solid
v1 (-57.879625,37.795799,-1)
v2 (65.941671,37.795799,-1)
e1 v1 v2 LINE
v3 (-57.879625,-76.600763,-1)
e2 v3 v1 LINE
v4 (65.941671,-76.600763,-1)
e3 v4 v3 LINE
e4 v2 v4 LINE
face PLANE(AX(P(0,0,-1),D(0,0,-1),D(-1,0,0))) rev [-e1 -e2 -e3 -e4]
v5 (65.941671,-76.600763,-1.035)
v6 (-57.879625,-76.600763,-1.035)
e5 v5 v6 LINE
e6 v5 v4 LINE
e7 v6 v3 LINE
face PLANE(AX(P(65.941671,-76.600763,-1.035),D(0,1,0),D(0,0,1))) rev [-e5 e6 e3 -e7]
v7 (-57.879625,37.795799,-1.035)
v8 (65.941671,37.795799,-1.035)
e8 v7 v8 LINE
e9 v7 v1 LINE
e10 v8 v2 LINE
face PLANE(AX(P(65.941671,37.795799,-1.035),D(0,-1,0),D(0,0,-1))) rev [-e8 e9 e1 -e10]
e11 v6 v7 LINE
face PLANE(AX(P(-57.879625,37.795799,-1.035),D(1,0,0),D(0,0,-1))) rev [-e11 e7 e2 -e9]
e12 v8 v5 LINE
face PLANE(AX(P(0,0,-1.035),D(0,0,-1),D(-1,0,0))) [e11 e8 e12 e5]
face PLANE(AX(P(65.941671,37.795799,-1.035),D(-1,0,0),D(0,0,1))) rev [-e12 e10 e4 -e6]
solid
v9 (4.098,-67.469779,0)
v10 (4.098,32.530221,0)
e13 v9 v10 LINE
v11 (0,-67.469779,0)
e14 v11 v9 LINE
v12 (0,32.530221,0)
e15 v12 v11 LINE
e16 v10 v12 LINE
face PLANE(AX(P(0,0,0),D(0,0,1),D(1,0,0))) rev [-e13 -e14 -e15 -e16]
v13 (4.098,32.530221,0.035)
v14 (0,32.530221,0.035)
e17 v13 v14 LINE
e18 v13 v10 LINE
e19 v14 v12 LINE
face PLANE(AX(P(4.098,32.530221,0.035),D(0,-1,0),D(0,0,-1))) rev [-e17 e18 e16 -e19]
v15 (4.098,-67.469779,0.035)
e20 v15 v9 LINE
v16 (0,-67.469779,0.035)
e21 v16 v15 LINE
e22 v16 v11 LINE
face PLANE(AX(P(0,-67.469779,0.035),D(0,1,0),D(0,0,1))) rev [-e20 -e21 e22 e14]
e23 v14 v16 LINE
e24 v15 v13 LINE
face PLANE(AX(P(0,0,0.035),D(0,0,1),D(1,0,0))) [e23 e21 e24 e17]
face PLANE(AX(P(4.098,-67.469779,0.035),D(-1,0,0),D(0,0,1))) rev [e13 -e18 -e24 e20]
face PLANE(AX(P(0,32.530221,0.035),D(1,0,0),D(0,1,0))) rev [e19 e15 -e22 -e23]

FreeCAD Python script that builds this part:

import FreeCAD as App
import Part
import Sketcher

V = App.Vector

doc = App.newDocument("Part")
params = doc.addObject("Spreadsheet::Sheet", "Params")
for row, (alias, value) in enumerate([
    ("sketch1_height", "100 mm"),
    ("pad1_length", "0.035 mm"),
    ("pad2_length", "0.035 mm"),
], start=1):
    params.set(f"A{row}", alias)
    params.set(f"B{row}", "=" + value)
    params.setAlias(f"B{row}", alias)

body = doc.addObject("PartDesign::Body", "Body")

sketch1 = body.newObject("Sketcher::SketchObject", "Sketch")
sketch1.AttachmentSupport = (doc.getObject("XY_Plane"), [""])
sketch1.MapMode = "FlatFace"
sketch1.addGeometry(Part.LineSegment(V(0, 32.530221, 0), V(0, -67.469779, 0)), False)
sketch1.addGeometry(Part.LineSegment(V(0, -67.469779, 0), V(4.098, -67.469779, 0)), False)
sketch1.addGeometry(Part.LineSegment(V(4.098, -67.469779, 0), V(4.098, 32.530221, 0)), False)
sketch1.addGeometry(Part.LineSegment(V(4.098, 32.530221, 0), V(0, 32.530221, 0)), False)
sketch1.addConstraint(Sketcher.Constraint("Coincident", 0, 2, 1, 1))
sketch1.addConstraint(Sketcher.Constraint("Coincident", 1, 2, 2, 1))
sketch1.addConstraint(Sketcher.Constraint("Coincident", 2, 2, 3, 1))
sketch1.addConstraint(Sketcher.Constraint("Coincident", 3, 2, 0, 1))
sketch1.addConstraint(Sketcher.Constraint("Vertical", 0))
sketch1.addConstraint(Sketcher.Constraint("Horizontal", 1))
sketch1.addConstraint(Sketcher.Constraint("Vertical", 2))
sketch1.addConstraint(Sketcher.Constraint("Horizontal", 3))
sketch1.addConstraint(Sketcher.Constraint("PointOnObject", 0, 2, -2))
sketch1.addConstraint(Sketcher.Constraint("DistanceY", 0, 2, 0, 1, 100.0))
sketch1.addConstraint(Sketcher.Constraint("DistanceX", 1, 1, 1, 2, 4.098))
sketch1.addConstraint(Sketcher.Constraint("DistanceY", 0, 2, -1, 1, 67.469779))
sketch1.setExpression("Constraints[9]", "Params.sketch1_height")
pad1 = body.newObject("PartDesign::Pad", "Pad")
pad1.Profile = sketch1
pad1.setExpression("Length", "Params.pad1_length")
body2 = doc.addObject("PartDesign::Body", "Body001")

sketch2 = body2.newObject("Sketcher::SketchObject", "Sketch001")
sketch2.AttachmentSupport = (doc.getObject("XY_Plane001"), [""])
sketch2.MapMode = "FlatFace"
sketch2.AttachmentOffset = App.Placement(V(0, 0, -1), App.Rotation())
sketch2.addGeometry(Part.LineSegment(V(65.941671, 37.795799, 0), V(65.941671, -76.600763, 0)), False)
sketch2.addGeometry(Part.LineSegment(V(65.941671, -76.600763, 0), V(-57.879625, -76.600763, 0)), False)
sketch2.addGeometry(Part.LineSegment(V(-57.879625, -76.600763, 0), V(-57.879625, 37.795799, 0)), False)
sketch2.addGeometry(Part.LineSegment(V(-57.879625, 37.795799, 0), V(65.941671, 37.795799, 0)), False)
sketch2.addConstraint(Sketcher.Constraint("Coincident", 0, 2, 1, 1))
sketch2.addConstraint(Sketcher.Constraint("Coincident", 1, 2, 2, 1))
sketch2.addConstraint(Sketcher.Constraint("Coincident", 2, 2, 3, 1))
sketch2.addConstraint(Sketcher.Constraint("Coincident", 3, 2, 0, 1))
sketch2.addConstraint(Sketcher.Constraint("Vertical", 0))
sketch2.addConstraint(Sketcher.Constraint("Horizontal", 1))
sketch2.addConstraint(Sketcher.Constraint("Vertical", 2))
sketch2.addConstraint(Sketcher.Constraint("Horizontal", 3))
sketch2.addConstraint(Sketcher.Constraint("DistanceY", 0, 2, 0, 1, 114.396562))
sketch2.addConstraint(Sketcher.Constraint("DistanceY", -1, 1, 2, 2, 37.795799))
sketch2.addConstraint(Sketcher.Constraint("DistanceX", 1, 2, 1, 1, 123.821295))
sketch2.addConstraint(Sketcher.Constraint("DistanceX", -1, 1, 0, 2, 65.941671))
pad2 = body2.newObject("PartDesign::Pad", "Pad001")
pad2.Profile = sketch2
pad2.setExpression("Length", "Params.pad2_length")
pad2.Reversed = True

doc.recompute()
